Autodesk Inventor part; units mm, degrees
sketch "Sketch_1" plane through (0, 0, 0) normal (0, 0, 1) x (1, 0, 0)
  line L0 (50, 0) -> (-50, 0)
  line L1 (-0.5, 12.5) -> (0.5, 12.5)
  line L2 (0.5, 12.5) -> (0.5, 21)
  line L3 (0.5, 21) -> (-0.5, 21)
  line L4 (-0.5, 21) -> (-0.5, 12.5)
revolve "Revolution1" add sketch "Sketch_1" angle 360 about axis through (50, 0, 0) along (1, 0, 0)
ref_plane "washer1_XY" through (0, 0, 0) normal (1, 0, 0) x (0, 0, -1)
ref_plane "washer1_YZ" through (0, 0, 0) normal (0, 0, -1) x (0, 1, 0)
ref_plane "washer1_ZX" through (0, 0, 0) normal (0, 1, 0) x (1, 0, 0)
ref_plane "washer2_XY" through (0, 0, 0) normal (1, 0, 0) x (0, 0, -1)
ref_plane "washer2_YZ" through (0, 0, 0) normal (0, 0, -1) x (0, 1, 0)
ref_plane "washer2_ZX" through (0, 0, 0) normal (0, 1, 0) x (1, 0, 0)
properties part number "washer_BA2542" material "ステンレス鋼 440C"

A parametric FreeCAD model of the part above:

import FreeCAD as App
import Part
import Sketcher
Q = App.Units.Quantity

doc = App.newDocument("Part")
params = doc.addObject("Spreadsheet::Sheet", "Params")
for row, (alias, value) in enumerate([
    ("sketch1_width", "1 mm"),
    ("sketch1_height", "8.5 mm"),
    ("revolution_angle", "360 deg"),
], start=1):
    params.set(f"A{row}", alias)
    params.set(f"B{row}", "=" + value)
    params.setAlias(f"B{row}", alias)

body = doc.addObject("PartDesign::Body", "Body")

# Sketch on XY plane
sketch1 = body.newObject("Sketcher::SketchObject", "Sketch")
sketch1.AttachmentSupport = (doc.getObject("XY_Plane"), [""])
sketch1.MapMode = "FlatFace"
sketch1.addGeometry([
    Part.LineSegment(App.Vector(-0.5, 21, 0), App.Vector(-0.5, 12.5, 0)),
    Part.LineSegment(App.Vector(-0.5, 12.5, 0), App.Vector(0.5, 12.5, 0)),
    Part.LineSegment(App.Vector(0.5, 12.5, 0), App.Vector(0.5, 21, 0)),
    Part.LineSegment(App.Vector(0.5, 21, 0), App.Vector(-0.5, 21, 0)),
], False)
sketch1.addConstraint([
    Sketcher.Constraint("Coincident", 0, 2, 1, 1),
    Sketcher.Constraint("Coincident", 1, 2, 2, 1),
    Sketcher.Constraint("Coincident", 2, 2, 3, 1),
    Sketcher.Constraint("Coincident", 3, 2, 0, 1),
    Sketcher.Constraint("Vertical", 0),
    Sketcher.Constraint("Horizontal", 1),
    Sketcher.Constraint("Vertical", 2),
    Sketcher.Constraint("Horizontal", 3),
    Sketcher.Constraint("DistanceX", 1, 1, 1, 2, Q("1 mm")),
    Sketcher.Constraint("DistanceY", 0, 2, 0, 1, Q("8.5 mm")),
    Sketcher.Constraint("DistanceY", -1, 1, 2, 2, Q("21 mm")),
    Sketcher.Constraint("DistanceX", 0, 2, -1, 1, Q("0.5 mm")),
])
sketch1.setExpression("Constraints[8]", "Params.sketch1_width")
sketch1.setExpression("Constraints[9]", "Params.sketch1_height")
revolution = body.newObject("PartDesign::Revolution", "Revolution")
revolution.Profile = sketch1
revolution.ReferenceAxis = (sketch1, ["H_Axis"])
revolution.setExpression("Angle", "Params.revolution_angle")

doc.recompute()
